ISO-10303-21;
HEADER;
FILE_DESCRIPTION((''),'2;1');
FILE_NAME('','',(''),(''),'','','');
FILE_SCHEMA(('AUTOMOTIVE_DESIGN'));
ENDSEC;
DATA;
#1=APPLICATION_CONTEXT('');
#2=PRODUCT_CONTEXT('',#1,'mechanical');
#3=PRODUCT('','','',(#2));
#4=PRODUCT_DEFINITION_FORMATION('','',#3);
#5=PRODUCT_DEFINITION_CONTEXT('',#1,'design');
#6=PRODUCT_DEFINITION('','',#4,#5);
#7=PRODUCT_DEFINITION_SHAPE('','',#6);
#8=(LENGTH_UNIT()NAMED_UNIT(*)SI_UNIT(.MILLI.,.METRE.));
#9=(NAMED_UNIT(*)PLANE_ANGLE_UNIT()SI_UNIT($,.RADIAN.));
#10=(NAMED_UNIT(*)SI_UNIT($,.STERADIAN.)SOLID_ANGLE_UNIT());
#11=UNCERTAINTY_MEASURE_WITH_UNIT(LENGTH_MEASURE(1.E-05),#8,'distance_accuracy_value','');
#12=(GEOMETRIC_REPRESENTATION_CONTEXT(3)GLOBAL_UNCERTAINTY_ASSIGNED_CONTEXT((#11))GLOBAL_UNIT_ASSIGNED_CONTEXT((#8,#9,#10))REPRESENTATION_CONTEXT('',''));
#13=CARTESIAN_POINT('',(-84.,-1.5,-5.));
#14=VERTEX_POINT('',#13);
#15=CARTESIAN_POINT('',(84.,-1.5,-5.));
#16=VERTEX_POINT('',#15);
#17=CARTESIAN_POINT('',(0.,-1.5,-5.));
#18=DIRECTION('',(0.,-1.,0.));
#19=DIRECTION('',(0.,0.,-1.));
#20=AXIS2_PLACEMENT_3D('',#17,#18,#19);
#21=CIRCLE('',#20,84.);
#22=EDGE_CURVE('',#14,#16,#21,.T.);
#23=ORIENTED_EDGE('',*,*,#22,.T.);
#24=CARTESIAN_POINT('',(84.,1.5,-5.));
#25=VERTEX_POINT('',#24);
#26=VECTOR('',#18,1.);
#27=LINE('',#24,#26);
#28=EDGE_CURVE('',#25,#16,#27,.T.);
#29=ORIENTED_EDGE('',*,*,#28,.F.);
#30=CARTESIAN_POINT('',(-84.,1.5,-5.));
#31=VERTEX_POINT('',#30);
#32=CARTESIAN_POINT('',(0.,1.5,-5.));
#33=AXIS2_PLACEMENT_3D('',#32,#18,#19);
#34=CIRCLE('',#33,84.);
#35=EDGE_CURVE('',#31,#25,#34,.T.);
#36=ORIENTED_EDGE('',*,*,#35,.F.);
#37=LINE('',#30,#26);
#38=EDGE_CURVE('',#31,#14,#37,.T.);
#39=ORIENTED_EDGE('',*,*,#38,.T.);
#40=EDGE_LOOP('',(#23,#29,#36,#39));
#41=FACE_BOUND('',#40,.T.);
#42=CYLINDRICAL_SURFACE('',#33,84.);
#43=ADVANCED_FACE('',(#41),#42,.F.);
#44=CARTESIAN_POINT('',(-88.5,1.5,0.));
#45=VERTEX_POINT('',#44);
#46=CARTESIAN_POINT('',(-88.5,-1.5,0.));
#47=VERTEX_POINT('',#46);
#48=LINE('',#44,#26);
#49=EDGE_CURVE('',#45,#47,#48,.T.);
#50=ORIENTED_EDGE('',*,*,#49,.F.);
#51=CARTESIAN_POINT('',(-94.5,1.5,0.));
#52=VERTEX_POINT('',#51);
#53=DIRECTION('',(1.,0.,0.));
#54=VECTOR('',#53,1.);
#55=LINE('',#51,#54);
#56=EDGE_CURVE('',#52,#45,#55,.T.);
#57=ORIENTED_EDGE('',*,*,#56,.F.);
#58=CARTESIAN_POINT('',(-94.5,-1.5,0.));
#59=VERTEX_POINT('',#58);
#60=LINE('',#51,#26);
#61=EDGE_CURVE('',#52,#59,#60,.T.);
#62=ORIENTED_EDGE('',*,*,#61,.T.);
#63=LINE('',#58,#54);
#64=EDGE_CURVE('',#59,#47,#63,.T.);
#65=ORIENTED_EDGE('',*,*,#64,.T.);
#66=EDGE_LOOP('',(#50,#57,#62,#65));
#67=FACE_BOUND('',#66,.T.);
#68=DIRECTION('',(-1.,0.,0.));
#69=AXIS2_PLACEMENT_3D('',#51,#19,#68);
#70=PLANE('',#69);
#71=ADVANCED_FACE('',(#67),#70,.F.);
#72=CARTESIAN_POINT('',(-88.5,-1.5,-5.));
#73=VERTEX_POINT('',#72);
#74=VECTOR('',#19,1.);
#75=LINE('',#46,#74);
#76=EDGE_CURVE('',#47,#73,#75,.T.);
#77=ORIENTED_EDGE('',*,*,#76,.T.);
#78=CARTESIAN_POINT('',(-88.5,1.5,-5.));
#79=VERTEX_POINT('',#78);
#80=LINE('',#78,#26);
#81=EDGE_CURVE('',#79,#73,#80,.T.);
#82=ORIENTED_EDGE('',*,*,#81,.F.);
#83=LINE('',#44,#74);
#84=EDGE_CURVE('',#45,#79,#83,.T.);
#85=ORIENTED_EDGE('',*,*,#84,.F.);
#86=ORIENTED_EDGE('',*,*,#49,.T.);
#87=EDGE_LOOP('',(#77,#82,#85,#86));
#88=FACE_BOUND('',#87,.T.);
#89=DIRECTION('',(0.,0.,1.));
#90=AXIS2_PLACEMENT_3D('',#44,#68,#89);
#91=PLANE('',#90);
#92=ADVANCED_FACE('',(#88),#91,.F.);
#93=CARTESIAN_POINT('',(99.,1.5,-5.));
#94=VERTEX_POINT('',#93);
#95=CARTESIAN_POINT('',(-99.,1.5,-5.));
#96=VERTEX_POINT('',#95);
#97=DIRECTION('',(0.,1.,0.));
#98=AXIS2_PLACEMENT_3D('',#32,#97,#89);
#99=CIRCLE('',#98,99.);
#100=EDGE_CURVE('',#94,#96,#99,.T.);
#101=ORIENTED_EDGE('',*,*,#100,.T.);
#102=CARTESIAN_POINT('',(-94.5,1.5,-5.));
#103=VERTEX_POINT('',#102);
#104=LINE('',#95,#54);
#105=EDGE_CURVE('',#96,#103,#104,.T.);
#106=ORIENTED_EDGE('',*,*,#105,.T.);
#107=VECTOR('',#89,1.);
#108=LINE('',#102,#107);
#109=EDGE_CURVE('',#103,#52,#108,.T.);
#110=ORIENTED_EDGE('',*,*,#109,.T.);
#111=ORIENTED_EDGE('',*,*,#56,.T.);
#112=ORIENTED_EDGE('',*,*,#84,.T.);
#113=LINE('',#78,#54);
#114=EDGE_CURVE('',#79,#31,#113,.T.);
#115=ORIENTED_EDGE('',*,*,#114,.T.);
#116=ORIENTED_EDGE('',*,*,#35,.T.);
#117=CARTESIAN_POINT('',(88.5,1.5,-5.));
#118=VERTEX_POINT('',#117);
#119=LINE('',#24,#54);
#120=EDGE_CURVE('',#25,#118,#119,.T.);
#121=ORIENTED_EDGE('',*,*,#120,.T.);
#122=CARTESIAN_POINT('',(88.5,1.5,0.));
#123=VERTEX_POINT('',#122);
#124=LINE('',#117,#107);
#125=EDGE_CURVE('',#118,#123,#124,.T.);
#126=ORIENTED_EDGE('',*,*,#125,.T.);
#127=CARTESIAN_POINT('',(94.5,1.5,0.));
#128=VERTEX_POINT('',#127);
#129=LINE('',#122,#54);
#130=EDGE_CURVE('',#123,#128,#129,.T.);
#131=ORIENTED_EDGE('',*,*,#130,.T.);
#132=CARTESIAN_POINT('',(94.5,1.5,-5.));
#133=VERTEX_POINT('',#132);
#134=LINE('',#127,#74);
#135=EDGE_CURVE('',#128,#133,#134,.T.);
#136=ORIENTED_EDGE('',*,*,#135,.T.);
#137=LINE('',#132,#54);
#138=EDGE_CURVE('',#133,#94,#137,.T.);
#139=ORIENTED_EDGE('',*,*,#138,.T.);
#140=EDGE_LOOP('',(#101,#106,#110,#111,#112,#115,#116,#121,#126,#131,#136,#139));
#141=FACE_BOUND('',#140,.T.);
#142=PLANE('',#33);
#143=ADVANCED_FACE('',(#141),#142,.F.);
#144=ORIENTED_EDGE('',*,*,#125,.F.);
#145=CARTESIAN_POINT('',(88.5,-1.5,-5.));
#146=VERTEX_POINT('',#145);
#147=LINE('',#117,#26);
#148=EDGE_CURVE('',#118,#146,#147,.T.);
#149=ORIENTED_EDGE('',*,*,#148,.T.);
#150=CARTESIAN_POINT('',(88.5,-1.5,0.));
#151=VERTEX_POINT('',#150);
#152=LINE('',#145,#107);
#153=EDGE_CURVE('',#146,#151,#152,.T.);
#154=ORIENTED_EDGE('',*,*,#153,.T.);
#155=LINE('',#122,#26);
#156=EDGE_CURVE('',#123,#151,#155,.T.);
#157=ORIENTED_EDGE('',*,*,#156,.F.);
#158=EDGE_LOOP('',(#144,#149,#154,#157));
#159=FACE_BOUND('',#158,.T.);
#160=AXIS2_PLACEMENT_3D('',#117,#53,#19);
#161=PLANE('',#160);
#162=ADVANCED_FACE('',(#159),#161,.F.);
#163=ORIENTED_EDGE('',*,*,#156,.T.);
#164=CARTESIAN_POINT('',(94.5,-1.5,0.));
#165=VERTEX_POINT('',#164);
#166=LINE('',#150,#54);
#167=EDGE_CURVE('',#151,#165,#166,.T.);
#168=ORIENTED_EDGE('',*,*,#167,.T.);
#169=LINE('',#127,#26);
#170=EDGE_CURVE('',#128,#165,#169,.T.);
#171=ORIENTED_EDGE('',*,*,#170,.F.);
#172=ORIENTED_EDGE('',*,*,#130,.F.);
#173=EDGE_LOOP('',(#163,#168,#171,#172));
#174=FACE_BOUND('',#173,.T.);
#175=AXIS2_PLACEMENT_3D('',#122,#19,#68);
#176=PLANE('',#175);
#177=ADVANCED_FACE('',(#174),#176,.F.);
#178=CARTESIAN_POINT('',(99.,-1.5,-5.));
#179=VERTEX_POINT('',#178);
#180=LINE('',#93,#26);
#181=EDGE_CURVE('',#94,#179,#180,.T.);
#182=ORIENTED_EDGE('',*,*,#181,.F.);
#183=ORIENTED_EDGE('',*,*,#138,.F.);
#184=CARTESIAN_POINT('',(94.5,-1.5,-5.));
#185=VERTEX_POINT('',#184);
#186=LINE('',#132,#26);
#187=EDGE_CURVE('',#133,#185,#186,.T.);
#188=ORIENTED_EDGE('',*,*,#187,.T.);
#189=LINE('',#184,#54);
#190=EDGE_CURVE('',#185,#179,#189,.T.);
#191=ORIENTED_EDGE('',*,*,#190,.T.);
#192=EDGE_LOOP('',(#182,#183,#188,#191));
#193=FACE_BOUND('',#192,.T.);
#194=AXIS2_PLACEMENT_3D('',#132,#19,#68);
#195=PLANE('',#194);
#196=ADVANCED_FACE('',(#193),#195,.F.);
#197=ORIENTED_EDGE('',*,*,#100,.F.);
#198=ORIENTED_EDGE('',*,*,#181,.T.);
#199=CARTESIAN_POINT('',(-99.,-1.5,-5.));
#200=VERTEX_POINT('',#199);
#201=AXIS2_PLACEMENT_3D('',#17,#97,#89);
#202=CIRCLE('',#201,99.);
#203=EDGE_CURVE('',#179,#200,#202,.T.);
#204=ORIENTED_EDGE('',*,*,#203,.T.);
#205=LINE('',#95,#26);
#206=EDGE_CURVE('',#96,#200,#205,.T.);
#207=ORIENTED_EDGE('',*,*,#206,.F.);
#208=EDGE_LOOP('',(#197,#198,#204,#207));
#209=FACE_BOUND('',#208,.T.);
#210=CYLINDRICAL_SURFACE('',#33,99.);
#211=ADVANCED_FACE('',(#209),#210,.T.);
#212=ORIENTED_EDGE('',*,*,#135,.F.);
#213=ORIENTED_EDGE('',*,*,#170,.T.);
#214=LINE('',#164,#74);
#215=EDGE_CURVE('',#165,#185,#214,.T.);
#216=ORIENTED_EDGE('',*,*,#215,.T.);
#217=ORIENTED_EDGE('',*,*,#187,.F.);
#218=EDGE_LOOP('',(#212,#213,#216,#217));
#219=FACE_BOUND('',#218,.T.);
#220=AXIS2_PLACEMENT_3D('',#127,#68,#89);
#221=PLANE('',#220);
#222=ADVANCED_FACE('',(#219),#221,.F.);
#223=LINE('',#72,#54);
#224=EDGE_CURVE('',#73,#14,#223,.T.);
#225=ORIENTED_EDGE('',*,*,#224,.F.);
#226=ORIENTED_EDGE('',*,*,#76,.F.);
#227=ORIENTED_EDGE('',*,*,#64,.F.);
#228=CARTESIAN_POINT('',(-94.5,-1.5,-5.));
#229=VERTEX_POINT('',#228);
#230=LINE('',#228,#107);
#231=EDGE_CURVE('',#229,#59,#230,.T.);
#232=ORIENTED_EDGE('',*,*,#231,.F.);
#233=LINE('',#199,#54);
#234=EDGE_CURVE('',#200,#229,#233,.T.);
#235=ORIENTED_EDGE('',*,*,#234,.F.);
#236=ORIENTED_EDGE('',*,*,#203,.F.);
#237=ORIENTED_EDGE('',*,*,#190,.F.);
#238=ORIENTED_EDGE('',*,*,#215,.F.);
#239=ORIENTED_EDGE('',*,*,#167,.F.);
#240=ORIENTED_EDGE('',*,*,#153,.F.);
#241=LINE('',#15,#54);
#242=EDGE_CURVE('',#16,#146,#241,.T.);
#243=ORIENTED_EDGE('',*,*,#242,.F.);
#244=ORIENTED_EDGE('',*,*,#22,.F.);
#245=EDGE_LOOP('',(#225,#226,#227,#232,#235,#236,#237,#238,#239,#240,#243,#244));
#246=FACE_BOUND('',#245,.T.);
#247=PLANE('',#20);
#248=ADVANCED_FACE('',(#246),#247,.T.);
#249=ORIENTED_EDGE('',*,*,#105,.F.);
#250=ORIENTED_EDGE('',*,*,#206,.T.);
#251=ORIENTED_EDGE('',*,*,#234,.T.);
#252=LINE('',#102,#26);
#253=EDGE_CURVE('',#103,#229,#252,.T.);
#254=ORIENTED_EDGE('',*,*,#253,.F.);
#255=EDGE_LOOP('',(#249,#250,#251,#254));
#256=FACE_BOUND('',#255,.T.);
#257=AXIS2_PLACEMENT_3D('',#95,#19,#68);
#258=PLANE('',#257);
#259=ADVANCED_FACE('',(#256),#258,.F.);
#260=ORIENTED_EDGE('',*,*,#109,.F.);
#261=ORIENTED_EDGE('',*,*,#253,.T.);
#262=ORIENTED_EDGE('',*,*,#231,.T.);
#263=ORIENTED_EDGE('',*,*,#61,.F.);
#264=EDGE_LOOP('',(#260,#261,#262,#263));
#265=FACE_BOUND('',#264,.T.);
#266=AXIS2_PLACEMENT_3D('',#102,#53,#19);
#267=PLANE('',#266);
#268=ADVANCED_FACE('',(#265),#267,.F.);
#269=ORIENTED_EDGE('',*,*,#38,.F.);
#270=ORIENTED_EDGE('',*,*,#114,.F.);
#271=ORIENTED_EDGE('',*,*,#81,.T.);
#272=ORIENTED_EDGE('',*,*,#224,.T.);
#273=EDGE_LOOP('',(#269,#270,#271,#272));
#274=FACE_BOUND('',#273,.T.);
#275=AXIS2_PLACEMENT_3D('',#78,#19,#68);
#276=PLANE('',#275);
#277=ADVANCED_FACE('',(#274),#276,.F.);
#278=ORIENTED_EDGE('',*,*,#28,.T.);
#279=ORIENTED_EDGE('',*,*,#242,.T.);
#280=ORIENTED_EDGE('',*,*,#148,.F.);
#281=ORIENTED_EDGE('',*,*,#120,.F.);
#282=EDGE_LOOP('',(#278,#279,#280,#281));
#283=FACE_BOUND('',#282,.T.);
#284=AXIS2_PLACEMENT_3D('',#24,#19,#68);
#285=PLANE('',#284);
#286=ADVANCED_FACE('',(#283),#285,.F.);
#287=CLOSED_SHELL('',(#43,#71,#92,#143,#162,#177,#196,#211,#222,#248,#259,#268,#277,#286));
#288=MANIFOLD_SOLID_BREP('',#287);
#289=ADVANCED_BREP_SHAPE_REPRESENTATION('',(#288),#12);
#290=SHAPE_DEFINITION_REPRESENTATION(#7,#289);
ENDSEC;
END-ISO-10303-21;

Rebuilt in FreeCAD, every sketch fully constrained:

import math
import FreeCAD as App
import Part
import Sketcher

doc = App.newDocument("Part")
params = doc.addObject("Spreadsheet::Sheet", "Params")
for row, (alias, value) in enumerate([
    ("sketch1_radius", "84 mm"),
    ("sketch1_radius2", "99 mm"),
    ("sketch1_width", "6 mm"),
    ("sketch1_height", "5 mm"),
    ("pad1_length", "3 mm"),
], start=1):
    params.set(f"A{row}", alias)
    params.set(f"B{row}", "=" + value)
    params.setAlias(f"B{row}", alias)

body = doc.addObject("PartDesign::Body", "Body")

# Sketch on XZ plane
sketch1 = doc.addObject("Sketcher::SketchObject", "Sketch")
body.addObject(sketch1)
sketch1.AttachmentSupport = (doc.XZ_Plane, [""])
sketch1.MapMode = "FlatFace"
sketch1.addGeometry([
    Part.LineSegment(App.Vector(-94.5, 0, 0), App.Vector(-88.5, 0, 0)),  # 0
    Part.LineSegment(App.Vector(-88.5, 0, 0), App.Vector(-88.5, -5, 0)),  # 1
    Part.LineSegment(App.Vector(-88.5, -5, 0), App.Vector(-84, -5, 0)),  # 2
    Part.ArcOfCircle(Part.Circle(App.Vector(0, -5, 0), App.Vector(0, 0, 1), 84), math.radians(180), math.radians(360)),  # 3
    Part.LineSegment(App.Vector(84, -5, 0), App.Vector(88.5, -5, 0)),  # 4
    Part.LineSegment(App.Vector(88.5, -5, 0), App.Vector(88.5, 0, 0)),  # 5
    Part.LineSegment(App.Vector(88.5, 0, 0), App.Vector(94.5, 0, 0)),  # 6
    Part.LineSegment(App.Vector(94.5, 0, 0), App.Vector(94.5, -5, 0)),  # 7
    Part.LineSegment(App.Vector(94.5, -5, 0), App.Vector(99, -5, 0)),  # 8
    Part.ArcOfCircle(Part.Circle(App.Vector(0, -5, 0), App.Vector(0, 0, 1), 99), math.radians(180), math.radians(360)),  # 9
    Part.LineSegment(App.Vector(-99, -5, 0), App.Vector(-94.5, -5, 0)),  # 10
    Part.LineSegment(App.Vector(-94.5, -5, 0), App.Vector(-94.5, 0, 0)),  # 11
], False)
sketch1.addConstraint([
    Sketcher.Constraint("Coincident", 0, 2, 1, 1),
    Sketcher.Constraint("Coincident", 1, 2, 2, 1),
    Sketcher.Constraint("Coincident", 2, 2, 3, 1),
    Sketcher.Constraint("Coincident", 3, 2, 4, 1),
    Sketcher.Constraint("Coincident", 4, 2, 5, 1),
    Sketcher.Constraint("Coincident", 5, 2, 6, 1),
    Sketcher.Constraint("Coincident", 6, 2, 7, 1),
    Sketcher.Constraint("Coincident", 7, 2, 8, 1),
    Sketcher.Constraint("Coincident", 8, 2, 9, 2),
    Sketcher.Constraint("Coincident", 9, 1, 10, 1),
    Sketcher.Constraint("Coincident", 10, 2, 11, 1),
    Sketcher.Constraint("Coincident", 11, 2, 0, 1),
    Sketcher.Constraint("Horizontal", 0),
    Sketcher.Constraint("Vertical", 1),
    Sketcher.Constraint("Horizontal", 2),
    Sketcher.Constraint("Horizontal", 4),
    Sketcher.Constraint("Vertical", 5),
    Sketcher.Constraint("Horizontal", 6),
    Sketcher.Constraint("Vertical", 7),
    Sketcher.Constraint("Horizontal", 8),
    Sketcher.Constraint("Horizontal", 10),
    Sketcher.Constraint("Vertical", 11),
    Sketcher.Constraint("Coincident", 9, 3, 3, 3),
    Sketcher.Constraint("Symmetric", 0, 2, 5, 2, -1, 1),
    Sketcher.Constraint("Symmetric", 2, 2, 3, 2, -2),
    Sketcher.Constraint("Symmetric", 7, 2, 10, 2, -2),
    Sketcher.Constraint("PointOnObject", 0, 2, -1),
    Sketcher.Constraint("Horizontal", 9, 3, 1, 2),
    Sketcher.Constraint("Horizontal", 4, 2, 7, 2),
    Sketcher.Constraint("Equal", 4, 8),
    Sketcher.Constraint("Radius", 3, 84.0),
    Sketcher.Constraint("Radius", 9, 99.0),
    Sketcher.Constraint("DistanceX", 0, 1, 0, 2, 6.0),
    Sketcher.Constraint("DistanceY", 1, 2, 1, 1, 5.0),
])
sketch1.setExpression("Constraints[30]", "Params.sketch1_radius")
sketch1.setExpression("Constraints[31]", "Params.sketch1_radius2")
sketch1.setExpression("Constraints[32]", "Params.sketch1_width")
sketch1.setExpression("Constraints[33]", "Params.sketch1_height")
pad1 = doc.addObject("PartDesign::Pad", "Pad")
body.addObject(pad1)
pad1.Profile = sketch1
pad1.setExpression("Length", "Params.pad1_length")
pad1.Midplane = True

doc.recompute()
